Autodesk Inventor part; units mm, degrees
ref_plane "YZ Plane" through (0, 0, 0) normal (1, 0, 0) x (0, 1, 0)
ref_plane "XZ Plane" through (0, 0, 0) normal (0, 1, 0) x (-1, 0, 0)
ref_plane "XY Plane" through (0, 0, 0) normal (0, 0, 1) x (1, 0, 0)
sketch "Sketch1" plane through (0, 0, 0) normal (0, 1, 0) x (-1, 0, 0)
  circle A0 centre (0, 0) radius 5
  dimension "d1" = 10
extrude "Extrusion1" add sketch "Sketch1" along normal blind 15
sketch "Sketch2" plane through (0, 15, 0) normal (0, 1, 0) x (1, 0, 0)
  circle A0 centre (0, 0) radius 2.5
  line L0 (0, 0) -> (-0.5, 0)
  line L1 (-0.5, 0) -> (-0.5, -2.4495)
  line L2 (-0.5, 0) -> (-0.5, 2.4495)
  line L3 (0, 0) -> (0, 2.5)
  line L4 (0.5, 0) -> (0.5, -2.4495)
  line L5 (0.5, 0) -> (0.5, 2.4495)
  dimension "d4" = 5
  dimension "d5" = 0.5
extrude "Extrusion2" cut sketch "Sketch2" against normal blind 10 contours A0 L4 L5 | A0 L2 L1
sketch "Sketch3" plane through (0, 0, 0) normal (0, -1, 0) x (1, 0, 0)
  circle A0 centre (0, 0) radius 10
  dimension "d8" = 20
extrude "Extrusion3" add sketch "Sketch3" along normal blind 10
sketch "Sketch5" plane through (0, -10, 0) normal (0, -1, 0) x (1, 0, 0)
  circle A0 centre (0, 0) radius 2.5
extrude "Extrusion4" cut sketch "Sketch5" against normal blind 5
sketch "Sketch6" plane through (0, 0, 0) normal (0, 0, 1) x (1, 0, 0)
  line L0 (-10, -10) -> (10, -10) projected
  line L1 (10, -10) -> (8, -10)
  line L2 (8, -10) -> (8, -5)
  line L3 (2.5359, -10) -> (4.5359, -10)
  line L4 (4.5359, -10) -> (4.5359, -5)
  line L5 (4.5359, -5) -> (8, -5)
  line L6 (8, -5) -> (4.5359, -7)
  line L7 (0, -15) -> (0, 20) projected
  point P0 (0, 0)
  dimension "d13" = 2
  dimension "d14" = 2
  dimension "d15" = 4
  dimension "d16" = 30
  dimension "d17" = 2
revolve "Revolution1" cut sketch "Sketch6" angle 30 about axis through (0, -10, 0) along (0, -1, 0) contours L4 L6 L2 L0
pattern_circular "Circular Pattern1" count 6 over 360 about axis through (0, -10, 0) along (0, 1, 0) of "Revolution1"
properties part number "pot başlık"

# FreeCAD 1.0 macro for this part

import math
import FreeCAD as App
import Part
import Sketcher

V = App.Vector
Q = App.Units.Quantity

doc = App.newDocument("Part")
body = doc.addObject("PartDesign::Body", "Body")

sketch1 = doc.addObject("Sketcher::SketchObject", "Sketch")
body.addObject(sketch1)
sketch1.AttachmentSupport = (doc.XZ_Plane, [""])
sketch1.MapMode = "FlatFace"
sketch1.addGeometry(Part.Circle(V(0, 0, 0), V(0, 0, 1), 5), False)
sketch1.addConstraint([
    Sketcher.Constraint("Coincident", 0, 3, -1, 1),
    Sketcher.Constraint("Diameter", 0, Q("10 mm")),
])
pad1 = doc.addObject("PartDesign::Pad", "Pad")
body.addObject(pad1)
pad1.Profile = sketch1
pad1.Length = 15
pad1.Reversed = True

sketch2 = doc.addObject("Sketcher::SketchObject", "Sketch001")
body.addObject(sketch2)
sketch2.AttachmentSupport = (doc.XZ_Plane, [""])
sketch2.MapMode = "FlatFace"
sketch2.AttachmentOffset = App.Placement(V(0, 0, -15), App.Rotation())
sketch2.addGeometry([
    Part.ArcOfCircle(Part.Circle(V(0, 0, 0), V(0, 0, 1), 2.5), math.radians(-78), math.radians(78)),
    Part.LineSegment(V(0.5, 2.4, 0), V(0.5, -2.4, 0)),
    Part.ArcOfCircle(Part.Circle(V(0, 0, 0), V(0, 0, 1), 2.5), math.radians(102), math.radians(258)),
    Part.LineSegment(V(-0.5, -2.4, 0), V(-0.5, 2.4, 0)),
], False)
sketch2.addConstraint([
    Sketcher.Constraint("Coincident", 0, 1, 1, 2),
    Sketcher.Constraint("Coincident", 1, 1, 0, 2),
    Sketcher.Constraint("Coincident", 2, 1, 3, 2),
    Sketcher.Constraint("Coincident", 3, 1, 2, 2),
    Sketcher.Constraint("Vertical", 1),
    Sketcher.Constraint("Vertical", 3),
    Sketcher.Constraint("Coincident", 0, 3, -1, 1),
    Sketcher.Constraint("Coincident", 2, 3, -1, 1),
    Sketcher.Constraint("Equal", 0, 2),
    Sketcher.Constraint("Horizontal", 1, 1, 2, 1),
    Sketcher.Constraint("Radius", 0, Q("2.5 mm")),
    Sketcher.Constraint("DistanceX", -1, 1, 0, 1, Q("0.5 mm")),
])
pocket1 = doc.addObject("PartDesign::Pocket", "Pocket")
body.addObject(pocket1)
pocket1.Profile = sketch2
pocket1.Length = 10
pocket1.Reversed = True

sketch3 = doc.addObject("Sketcher::SketchObject", "Sketch002")
body.addObject(sketch3)
sketch3.AttachmentSupport = (doc.XZ_Plane, [""])
sketch3.MapMode = "FlatFace"
sketch3.addGeometry(Part.Circle(V(0, 0, 0), V(0, 0, 1), 10), False)
sketch3.addConstraint([
    Sketcher.Constraint("Coincident", 0, 3, -1, 1),
    Sketcher.Constraint("Diameter", 0, Q("20 mm")),
])
pad2 = doc.addObject("PartDesign::Pad", "Pad001")
body.addObject(pad2)
pad2.Profile = sketch3
pad2.Length = 10

sketch4 = doc.addObject("Sketcher::SketchObject", "Sketch003")
body.addObject(sketch4)
sketch4.AttachmentSupport = (doc.XZ_Plane, [""])
sketch4.MapMode = "FlatFace"
sketch4.AttachmentOffset = App.Placement(V(0, 0, 10), App.Rotation())
sketch4.addGeometry(Part.Circle(V(0, 0, 0), V(0, 0, 1), 2.5), False)
sketch4.addConstraint([
    Sketcher.Constraint("Coincident", 0, 3, -1, 1),
    Sketcher.Constraint("Diameter", 0, Q("5 mm")),
])
pocket2 = doc.addObject("PartDesign::Pocket", "Pocket001")
body.addObject(pocket2)
pocket2.Profile = sketch4
pocket2.Length = 5

sketch5 = doc.addObject("Sketcher::SketchObject", "Sketch004")
body.addObject(sketch5)
sketch5.AttachmentSupport = (doc.XY_Plane, [""])
sketch5.MapMode = "FlatFace"
sketch5.addGeometry([
    Part.LineSegment(V(4.5, -7, 0), V(4.5, -10, 0)),
    Part.LineSegment(V(4.5, -10, 0), V(8, -10, 0)),
    Part.LineSegment(V(8, -10, 0), V(8, -5, 0)),
    Part.LineSegment(V(8, -5, 0), V(4.5, -7, 0)),
], False)
sketch5.addConstraint([
    Sketcher.Constraint("Coincident", 0, 2, 1, 1),
    Sketcher.Constraint("Coincident", 1, 2, 2, 1),
    Sketcher.Constraint("Coincident", 2, 2, 3, 1),
    Sketcher.Constraint("Coincident", 3, 2, 0, 1),
    Sketcher.Constraint("Vertical", 0),
    Sketcher.Constraint("Horizontal", 1),
    Sketcher.Constraint("Vertical", 2),
    Sketcher.Constraint("Distance", 3, Q("4 mm")),
    Sketcher.Constraint("DistanceY", 3, 2, 2, 2, Q("2 mm")),
    Sketcher.Constraint("DistanceY", 0, 2, 0, 1, Q("3 mm")),
    Sketcher.Constraint("DistanceY", 0, 2, -1, 1, Q("10 mm")),
    Sketcher.Constraint("DistanceX", -1, 1, 1, 2, Q("8 mm")),
])
groove = doc.addObject("PartDesign::Groove", "Groove")
body.addObject(groove)
groove.Profile = sketch5
groove.ReferenceAxis = (sketch5, ["V_Axis"])
groove.Angle = 30
groove.Reversed = True
doc.recompute()

polarpattern = doc.addObject("PartDesign::PolarPattern", "PolarPattern")
body.addObject(polarpattern)
polarpattern.Originals = [groove]
polarpattern.Axis = (doc.Y_Axis, [""])
polarpattern.Angle = 360
polarpattern.Occurrences = 6
body.Tip = polarpattern

doc.recompute()
